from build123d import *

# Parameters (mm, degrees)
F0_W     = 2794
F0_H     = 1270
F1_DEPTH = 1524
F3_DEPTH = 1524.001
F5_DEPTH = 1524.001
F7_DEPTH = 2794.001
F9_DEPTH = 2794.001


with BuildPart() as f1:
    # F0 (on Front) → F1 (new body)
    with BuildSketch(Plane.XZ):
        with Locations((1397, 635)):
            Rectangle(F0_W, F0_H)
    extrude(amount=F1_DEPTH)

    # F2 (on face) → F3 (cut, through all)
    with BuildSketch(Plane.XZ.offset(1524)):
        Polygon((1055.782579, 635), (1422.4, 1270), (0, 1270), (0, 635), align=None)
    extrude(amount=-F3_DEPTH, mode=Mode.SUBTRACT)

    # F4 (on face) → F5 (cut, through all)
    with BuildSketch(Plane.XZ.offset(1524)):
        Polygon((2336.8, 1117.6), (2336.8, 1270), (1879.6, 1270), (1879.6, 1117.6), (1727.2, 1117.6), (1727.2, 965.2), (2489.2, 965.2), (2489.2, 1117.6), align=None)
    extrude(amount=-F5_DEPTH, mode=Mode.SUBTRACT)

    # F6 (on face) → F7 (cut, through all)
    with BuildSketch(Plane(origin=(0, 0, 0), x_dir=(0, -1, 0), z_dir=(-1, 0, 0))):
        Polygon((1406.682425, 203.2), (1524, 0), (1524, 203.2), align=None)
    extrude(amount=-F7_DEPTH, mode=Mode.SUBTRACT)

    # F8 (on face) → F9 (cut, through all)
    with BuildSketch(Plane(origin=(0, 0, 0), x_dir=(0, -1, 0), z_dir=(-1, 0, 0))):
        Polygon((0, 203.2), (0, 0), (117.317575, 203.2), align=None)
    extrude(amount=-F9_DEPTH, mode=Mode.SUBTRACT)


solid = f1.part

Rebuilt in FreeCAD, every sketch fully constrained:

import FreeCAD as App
import Part
import Sketcher
from FreeCAD import Vector
Q = App.Units.Quantity

doc = App.newDocument("Part")
body = doc.addObject("PartDesign::Body", "Body")

sketch1 = body.newObject("Sketcher::SketchObject", "Sketch")
sketch1.AttachmentSupport = (doc.getObject("XZ_Plane"), [""])
sketch1.MapMode = "FlatFace"
sketch1.addGeometry(Part.LineSegment(Vector(0, 1270, 0), Vector(0, 0, 0)), False)
sketch1.addGeometry(Part.LineSegment(Vector(0, 0, 0), Vector(2794, 0, 0)), False)
sketch1.addGeometry(Part.LineSegment(Vector(2794, 0, 0), Vector(2794, 1270, 0)), False)
sketch1.addGeometry(Part.LineSegment(Vector(2794, 1270, 0), Vector(0, 1270, 0)), False)
sketch1.addConstraint(Sketcher.Constraint("Coincident", 0, 2, 1, 1))
sketch1.addConstraint(Sketcher.Constraint("Coincident", 1, 2, 2, 1))
sketch1.addConstraint(Sketcher.Constraint("Coincident", 2, 2, 3, 1))
sketch1.addConstraint(Sketcher.Constraint("Coincident", 3, 2, 0, 1))
sketch1.addConstraint(Sketcher.Constraint("Vertical", 0))
sketch1.addConstraint(Sketcher.Constraint("Horizontal", 1))
sketch1.addConstraint(Sketcher.Constraint("Vertical", 2))
sketch1.addConstraint(Sketcher.Constraint("Horizontal", 3))
sketch1.addConstraint(Sketcher.Constraint("Coincident", 0, 2, -1, 1))
sketch1.addConstraint(Sketcher.Constraint("DistanceX", 1, 1, 1, 2, Q("110 in")))
sketch1.addConstraint(Sketcher.Constraint("DistanceY", 0, 2, 0, 1, Q("50 in")))
pad1 = body.newObject("PartDesign::Pad", "Pad")
pad1.Profile = sketch1
pad1.Length = Q("60 in")

sketch2 = body.newObject("Sketcher::SketchObject", "Sketch001")
sketch2.AttachmentSupport = (doc.getObject("XZ_Plane"), [""])
sketch2.MapMode = "FlatFace"
sketch2.AttachmentOffset = App.Placement(Vector(0, 0, 60 * 25.4), App.Rotation())
sketch2.addGeometry(Part.LineSegment(Vector(1056, 635, 0), Vector(1422, 1270, 0)), False)
sketch2.addGeometry(Part.LineSegment(Vector(1422, 1270, 0), Vector(0, 1270, 0)), False)
sketch2.addGeometry(Part.LineSegment(Vector(0, 1270, 0), Vector(0, 635, 0)), False)
sketch2.addGeometry(Part.LineSegment(Vector(0, 635, 0), Vector(1056, 635, 0)), False)
sketch2.addConstraint(Sketcher.Constraint("Coincident", 0, 2, 1, 1))
sketch2.addConstraint(Sketcher.Constraint("Coincident", 1, 2, 2, 1))
sketch2.addConstraint(Sketcher.Constraint("Coincident", 2, 2, 3, 1))
sketch2.addConstraint(Sketcher.Constraint("Coincident", 3, 2, 0, 1))
sketch2.addConstraint(Sketcher.Constraint("Horizontal", 1))
sketch2.addConstraint(Sketcher.Constraint("Vertical", 2))
sketch2.addConstraint(Sketcher.Constraint("Horizontal", 3))
sketch2.addConstraint(Sketcher.Constraint("PointOnObject", 1, 2, -2))
sketch2.addConstraint(Sketcher.Constraint("DistanceX", 1, 2, 1, 1, Q("56 in")))
sketch2.addConstraint(Sketcher.Constraint("DistanceY", 2, 2, 2, 1, Q("25 in")))
sketch2.addConstraint(Sketcher.Constraint("DistanceY", -1, 1, 0, 2, Q("50 in")))
sketch2.addConstraint(Sketcher.Constraint("Angle", 0, Q("60 deg")))
pocket1 = body.newObject("PartDesign::Pocket", "Pocket")
pocket1.Profile = sketch2
pocket1.Type = "ThroughAll"

sketch3 = body.newObject("Sketcher::SketchObject", "Sketch002")
sketch3.AttachmentSupport = (doc.getObject("XZ_Plane"), [""])
sketch3.MapMode = "FlatFace"
sketch3.AttachmentOffset = App.Placement(Vector(0, 0, 60 * 25.4), App.Rotation())
sketch3.addGeometry(Part.LineSegment(Vector(2337, 1118, 0), Vector(2337, 1270, 0)), False)
sketch3.addGeometry(Part.LineSegment(Vector(2337, 1270, 0), Vector(1880, 1270, 0)), False)
sketch3.addGeometry(Part.LineSegment(Vector(1880, 1270, 0), Vector(1880, 1118, 0)), False)
sketch3.addGeometry(Part.LineSegment(Vector(1880, 1118, 0), Vector(1727, 1118, 0)), False)
sketch3.addGeometry(Part.LineSegment(Vector(1727, 1118, 0), Vector(1727, 965, 0)), False)
sketch3.addGeometry(Part.LineSegment(Vector(1727, 965, 0), Vector(2489, 965, 0)), False)
sketch3.addGeometry(Part.LineSegment(Vector(2489, 965, 0), Vector(2489, 1118, 0)), False)
sketch3.addGeometry(Part.LineSegment(Vector(2489, 1118, 0), Vector(2337, 1118, 0)), False)
sketch3.addConstraint(Sketcher.Constraint("Coincident", 0, 2, 1, 1))
sketch3.addConstraint(Sketcher.Constraint("Coincident", 1, 2, 2, 1))
sketch3.addConstraint(Sketcher.Constraint("Coincident", 2, 2, 3, 1))
sketch3.addConstraint(Sketcher.Constraint("Coincident", 3, 2, 4, 1))
sketch3.addConstraint(Sketcher.Constraint("Coincident", 4, 2, 5, 1))
sketch3.addConstraint(Sketcher.Constraint("Coincident", 5, 2, 6, 1))
sketch3.addConstraint(Sketcher.Constraint("Coincident", 6, 2, 7, 1))
sketch3.addConstraint(Sketcher.Constraint("Coincident", 7, 2, 0, 1))
sketch3.addConstraint(Sketcher.Constraint("Vertical", 0))
sketch3.addConstraint(Sketcher.Constraint("Horizontal", 1))
sketch3.addConstraint(Sketcher.Constraint("Vertical", 2))
sketch3.addConstraint(Sketcher.Constraint("Horizontal", 3))
sketch3.addConstraint(Sketcher.Constraint("Vertical", 4))
sketch3.addConstraint(Sketcher.Constraint("Horizontal", 5))
sketch3.addConstraint(Sketcher.Constraint("Vertical", 6))
sketch3.addConstraint(Sketcher.Constraint("Horizontal", 7))
sketch3.addConstraint(Sketcher.Constraint("Horizontal", 3, 2, 6, 2))
sketch3.addConstraint(Sketcher.Constraint("Equal", 3, 7))
sketch3.addConstraint(Sketcher.Constraint("Equal", 7, 0))
sketch3.addConstraint(Sketcher.Constraint("Equal", 2, 4))
sketch3.addConstraint(Sketcher.Constraint("DistanceX", 1, 2, 1, 1, Q("18 in")))
sketch3.addConstraint(Sketcher.Constraint("DistanceX", 3, 2, 3, 1, Q("6 in")))
sketch3.addConstraint(Sketcher.Constraint("DistanceX", -1, 1, 0, 2, Q("92 in")))
sketch3.addConstraint(Sketcher.Constraint("DistanceY", -1, 1, 0, 2, Q("50 in")))
pocket2 = body.newObject("PartDesign::Pocket", "Pocket001")
pocket2.Profile = sketch3
pocket2.Type = "ThroughAll"

sketch4 = body.newObject("Sketcher::SketchObject", "Sketch003")
sketch4.AttachmentSupport = (doc.getObject("YZ_Plane"), [""])
sketch4.MapMode = "FlatFace"
sketch4.addGeometry(Part.LineSegment(Vector(-1407, 203, 0), Vector(-1524, 0, 0)), False)
sketch4.addGeometry(Part.LineSegment(Vector(-1524, 0, 0), Vector(-1524, 203, 0)), False)
sketch4.addGeometry(Part.LineSegment(Vector(-1524, 203, 0), Vector(-1407, 203, 0)), False)
sketch4.addConstraint(Sketcher.Constraint("Coincident", 0, 2, 1, 1))
sketch4.addConstraint(Sketcher.Constraint("Coincident", 1, 2, 2, 1))
sketch4.addConstraint(Sketcher.Constraint("Coincident", 2, 2, 0, 1))
sketch4.addConstraint(Sketcher.Constraint("Vertical", 1))
sketch4.addConstraint(Sketcher.Constraint("Horizontal", 2))
sketch4.addConstraint(Sketcher.Constraint("PointOnObject", 0, 2, -1))
sketch4.addConstraint(Sketcher.Constraint("DistanceY", 1, 1, 1, 2, Q("8 in")))
sketch4.addConstraint(Sketcher.Constraint("DistanceX", 0, 2, -1, 1, Q("60 in")))
sketch4.addConstraint(Sketcher.Constraint("Angle", 0, Q("-120 deg")))
pocket3 = body.newObject("PartDesign::Pocket", "Pocket002")
pocket3.Profile = sketch4
pocket3.Type = "ThroughAll"
pocket3.Reversed = True

sketch5 = body.newObject("Sketcher::SketchObject", "Sketch004")
sketch5.AttachmentSupport = (doc.getObject("YZ_Plane"), [""])
sketch5.MapMode = "FlatFace"
sketch5.addGeometry(Part.LineSegment(Vector(0, 203, 0), Vector(0, 0, 0)), False)
sketch5.addGeometry(Part.LineSegment(Vector(0, 0, 0), Vector(-117, 203, 0)), False)
sketch5.addGeometry(Part.LineSegment(Vector(-117, 203, 0), Vector(0, 203, 0)), False)
sketch5.addConstraint(Sketcher.Constraint("Coincident", 0, 2, 1, 1))
sketch5.addConstraint(Sketcher.Constraint("Coincident", 1, 2, 2, 1))
sketch5.addConstraint(Sketcher.Constraint("Coincident", 2, 2, 0, 1))
sketch5.addConstraint(Sketcher.Constraint("Vertical", 0))
sketch5.addConstraint(Sketcher.Constraint("Horizontal", 2))
sketch5.addConstraint(Sketcher.Constraint("Coincident", 0, 2, -1, 1))
sketch5.addConstraint(Sketcher.Constraint("DistanceY", 0, 2, 0, 1, Q("8 in")))
sketch5.addConstraint(Sketcher.Constraint("Angle", 1, Q("120 deg")))
pocket4 = body.newObject("PartDesign::Pocket", "Pocket003")
pocket4.Profile = sketch5
pocket4.Type = "ThroughAll"
pocket4.Reversed = True

doc.recompute()
